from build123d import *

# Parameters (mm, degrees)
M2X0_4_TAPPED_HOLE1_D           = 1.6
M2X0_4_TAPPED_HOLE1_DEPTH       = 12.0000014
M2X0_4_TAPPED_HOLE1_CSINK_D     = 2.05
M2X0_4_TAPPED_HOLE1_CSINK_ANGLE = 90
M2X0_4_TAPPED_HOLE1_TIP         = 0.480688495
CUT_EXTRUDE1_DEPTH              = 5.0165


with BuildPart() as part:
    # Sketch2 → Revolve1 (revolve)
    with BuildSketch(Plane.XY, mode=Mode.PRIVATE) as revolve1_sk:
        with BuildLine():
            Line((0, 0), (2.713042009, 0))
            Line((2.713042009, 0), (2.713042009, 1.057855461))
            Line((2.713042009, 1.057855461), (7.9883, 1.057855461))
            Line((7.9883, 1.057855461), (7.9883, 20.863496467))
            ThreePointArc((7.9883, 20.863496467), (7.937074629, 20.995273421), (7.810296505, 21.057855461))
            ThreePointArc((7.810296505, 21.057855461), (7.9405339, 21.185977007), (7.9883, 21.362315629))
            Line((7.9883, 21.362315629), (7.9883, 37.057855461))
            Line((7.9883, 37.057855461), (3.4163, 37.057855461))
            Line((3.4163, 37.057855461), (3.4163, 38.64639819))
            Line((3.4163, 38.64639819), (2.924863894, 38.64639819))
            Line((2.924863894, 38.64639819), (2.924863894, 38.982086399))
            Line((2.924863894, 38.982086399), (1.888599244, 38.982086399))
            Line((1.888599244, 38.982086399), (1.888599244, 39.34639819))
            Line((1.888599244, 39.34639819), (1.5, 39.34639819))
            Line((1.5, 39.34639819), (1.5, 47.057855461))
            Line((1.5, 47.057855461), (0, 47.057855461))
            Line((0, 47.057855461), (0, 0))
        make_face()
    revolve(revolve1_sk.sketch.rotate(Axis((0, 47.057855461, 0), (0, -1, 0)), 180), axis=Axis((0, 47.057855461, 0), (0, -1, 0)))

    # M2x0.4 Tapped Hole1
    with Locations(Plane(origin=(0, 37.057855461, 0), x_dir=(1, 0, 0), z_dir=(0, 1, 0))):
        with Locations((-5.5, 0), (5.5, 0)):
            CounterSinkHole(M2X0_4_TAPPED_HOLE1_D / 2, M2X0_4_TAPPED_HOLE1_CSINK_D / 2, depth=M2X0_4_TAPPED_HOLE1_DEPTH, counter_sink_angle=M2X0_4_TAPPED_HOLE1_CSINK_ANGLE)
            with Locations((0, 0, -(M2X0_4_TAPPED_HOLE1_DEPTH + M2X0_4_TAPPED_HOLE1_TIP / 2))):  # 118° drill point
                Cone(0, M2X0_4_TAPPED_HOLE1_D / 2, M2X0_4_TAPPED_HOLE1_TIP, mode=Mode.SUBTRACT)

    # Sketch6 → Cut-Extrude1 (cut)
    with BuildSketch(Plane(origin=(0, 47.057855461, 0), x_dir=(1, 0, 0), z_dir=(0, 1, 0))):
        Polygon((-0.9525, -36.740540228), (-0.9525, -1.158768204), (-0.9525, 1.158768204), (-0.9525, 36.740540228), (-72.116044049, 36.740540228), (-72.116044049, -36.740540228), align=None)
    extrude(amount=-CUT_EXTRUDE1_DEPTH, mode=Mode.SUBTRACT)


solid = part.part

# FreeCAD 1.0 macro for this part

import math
import FreeCAD as App
import Part
import Sketcher
from FreeCAD import Vector


def add_polygon(sketch, points):
    """Adds a closed chain of lines whose ends are joined by coincident constraints."""
    first, n = sketch.GeometryCount, len(points)
    for a, b in zip(points, points[1:] + points[:1]):
        sketch.addGeometry(Part.LineSegment(App.Vector(*a, 0), App.Vector(*b, 0)), False)
    for i in range(n):
        sketch.addConstraint(Sketcher.Constraint("Coincident", first + i, 2, first + (i + 1) % n, 1))

doc = App.newDocument("Part")
body = doc.addObject("PartDesign::Body", "Body")

# Sketch on XY plane
sketch1 = body.newObject("Sketcher::SketchObject", "Sketch")
sketch1.AttachmentSupport = (doc.getObject("XY_Plane"), [""])
sketch1.MapMode = "FlatFace"
sketch1.addGeometry([
    Part.LineSegment(Vector(0, 0, 0), Vector(2.71, 0, 0)),  # 0
    Part.LineSegment(Vector(2.71, 0, 0), Vector(2.71, 1.06, 0)),  # 1
    Part.LineSegment(Vector(2.71, 1.06, 0), Vector(7.99, 1.06, 0)),  # 2
    Part.LineSegment(Vector(7.99, 1.06, 0), Vector(7.99, 20.86, 0)),  # 3
    Part.ArcOfCircle(Part.Circle(Vector(7.79, 20.86, 0), Vector(0, 0, 1), 0.2), math.radians(0), math.radians(85)),  # 4
    Part.ArcOfCircle(Part.Circle(Vector(7.64, 21.36, 0), Vector(0, 0, 1), 0.35), math.radians(-61), math.radians(0)),  # 5
    Part.LineSegment(Vector(7.99, 21.36, 0), Vector(7.99, 37.06, 0)),  # 6
    Part.LineSegment(Vector(7.99, 37.06, 0), Vector(3.42, 37.06, 0)),  # 7
    Part.LineSegment(Vector(3.42, 37.06, 0), Vector(3.42, 38.65, 0)),  # 8
    Part.LineSegment(Vector(3.42, 38.65, 0), Vector(2.92, 38.65, 0)),  # 9
    Part.LineSegment(Vector(2.92, 38.65, 0), Vector(2.92, 38.98, 0)),  # 10
    Part.LineSegment(Vector(2.92, 38.98, 0), Vector(1.89, 38.98, 0)),  # 11
    Part.LineSegment(Vector(1.89, 38.98, 0), Vector(1.89, 39.35, 0)),  # 12
    Part.LineSegment(Vector(1.89, 39.35, 0), Vector(1.5, 39.35, 0)),  # 13
    Part.LineSegment(Vector(1.5, 39.35, 0), Vector(1.5, 47.06, 0)),  # 14
    Part.LineSegment(Vector(1.5, 47.06, 0), Vector(0, 47.06, 0)),  # 15
    Part.LineSegment(Vector(0, 47.06, 0), Vector(0, 0, 0)),  # 16
], False)
sketch1.addConstraint([
    Sketcher.Constraint("Coincident", 0, 2, 1, 1),
    Sketcher.Constraint("Coincident", 1, 2, 2, 1),
    Sketcher.Constraint("Coincident", 2, 2, 3, 1),
    Sketcher.Constraint("Tangent", 3, 2, 4, 1),
    Sketcher.Constraint("Coincident", 4, 2, 5, 1),
    Sketcher.Constraint("Tangent", 5, 2, 6, 1),
    Sketcher.Constraint("Coincident", 6, 2, 7, 1),
    Sketcher.Constraint("Coincident", 7, 2, 8, 1),
    Sketcher.Constraint("Coincident", 8, 2, 9, 1),
    Sketcher.Constraint("Coincident", 9, 2, 10, 1),
    Sketcher.Constraint("Coincident", 10, 2, 11, 1),
    Sketcher.Constraint("Coincident", 11, 2, 12, 1),
    Sketcher.Constraint("Coincident", 12, 2, 13, 1),
    Sketcher.Constraint("Coincident", 13, 2, 14, 1),
    Sketcher.Constraint("Coincident", 14, 2, 15, 1),
    Sketcher.Constraint("Coincident", 15, 2, 16, 1),
    Sketcher.Constraint("Coincident", 16, 2, 0, 1),
    Sketcher.Constraint("Horizontal", 0),
    Sketcher.Constraint("Vertical", 1),
    Sketcher.Constraint("Horizontal", 2),
    Sketcher.Constraint("Vertical", 3),
    Sketcher.Constraint("Vertical", 6),
    Sketcher.Constraint("Horizontal", 7),
    Sketcher.Constraint("Vertical", 8),
    Sketcher.Constraint("Horizontal", 9),
    Sketcher.Constraint("Vertical", 10),
    Sketcher.Constraint("Horizontal", 11),
    Sketcher.Constraint("Vertical", 12),
    Sketcher.Constraint("Horizontal", 13),
    Sketcher.Constraint("Vertical", 14),
    Sketcher.Constraint("Horizontal", 15),
    Sketcher.Constraint("Vertical", 16),
    Sketcher.Constraint("Coincident", 16, 2, -1, 1),
    Sketcher.Constraint("Vertical", 3, 2, 5, 2),
    Sketcher.Constraint("DistanceX", 15, 2, 15, 1, 1.5),
    Sketcher.Constraint("DistanceY", 2, 2, 4, 2, 20.0),
    Sketcher.Constraint("DistanceY", 4, 2, 6, 2, 16.0),
    Sketcher.Constraint("DistanceY", 9, 2, 12, 2, 0.7),
    Sketcher.Constraint("DistanceX", 7, 2, 7, 1, 4.572),
    Sketcher.Constraint("Radius", 4, 0.19511),
    Sketcher.Constraint("Radius", 5, 0.349379),
    Sketcher.Constraint("DistanceX", 13, 2, 13, 1, 0.388599),
    Sketcher.Constraint("DistanceY", 3, 1, 3, 2, 19.805641),
    Sketcher.Constraint("DistanceY", 10, 1, 10, 2, 0.335688),
    Sketcher.Constraint("DistanceX", -1, 1, 2, 2, 7.9883),
    Sketcher.Constraint("DistanceY", -1, 1, 8, 2, 38.646398),
    Sketcher.Constraint("DistanceX", 0, 1, 0, 2, 2.713042),
    Sketcher.Constraint("DistanceX", 9, 2, 9, 1, 0.491436),
    Sketcher.Constraint("DistanceY", 1, 1, 1, 2, 1.057855),
    Sketcher.Constraint("DistanceY", 14, 1, 14, 2, 7.711457),
])
revolution = body.newObject("PartDesign::Revolution", "Revolution")
revolution.Profile = sketch1
revolution.ReferenceAxis = (sketch1, ["V_Axis"])
revolution.Angle = 360

# Sketch on XZ plane
sketch2 = body.newObject("Sketcher::SketchObject", "Sketch001")
sketch2.AttachmentSupport = (doc.getObject("XZ_Plane"), [""])
sketch2.MapMode = "FlatFace"
sketch2.AttachmentOffset = App.Placement(Vector(0, 0, -37.057855), App.Rotation())
sketch2.addGeometry([
    Part.Circle(Vector(-5.5, 0, 0), Vector(0, 0, 1), 0.8),
    Part.Circle(Vector(5.5, 0, 0), Vector(0, 0, 1), 0.8),
], False)
sketch2.addConstraint([
    Sketcher.Constraint("Equal", 0, 1),
    Sketcher.Constraint("Symmetric", 0, 3, 1, 3, -1, 1),
    Sketcher.Constraint("PointOnObject", 0, 3, -1),
    Sketcher.Constraint("Diameter", 0, 1.6),
    Sketcher.Constraint("DistanceX", 0, 3, 1, 3, 11.0),
])
doc.recompute()
hole = body.newObject("PartDesign::Hole", "Hole")
hole.Profile = sketch2
hole.ThreadType = "None"
hole.Diameter = 1.6
hole.DepthType = "Dimension"
hole.Depth = 12.000001
hole.DrillPoint = "Angled"
hole.DrillPointAngle = 118
hole.HoleCutType = "Countersink"
hole.HoleCutDiameter = 2.05
hole.HoleCutCountersinkAngle = 90
hole.Reversed = True

# Sketch on XZ plane
sketch3 = body.newObject("Sketcher::SketchObject", "Sketch002")
sketch3.AttachmentSupport = (doc.getObject("XZ_Plane"), [""])
sketch3.MapMode = "FlatFace"
sketch3.AttachmentOffset = App.Placement(Vector(0, 0, -47.057855), App.Rotation())
add_polygon(sketch3, [(-1, 37), (-1, -37), (-72, -37), (-72, 37)])  # lines 0-3
sketch3.addConstraint([
    Sketcher.Constraint("Vertical", 0),
    Sketcher.Constraint("Horizontal", 1),
    Sketcher.Constraint("Vertical", 2),
    Sketcher.Constraint("Horizontal", 3),
    Sketcher.Constraint("DistanceY", 0, 2, 0, 1, 73.48108),
    Sketcher.Constraint("DistanceX", 0, 2, -1, 1, 0.9525),
    Sketcher.Constraint("DistanceX", 1, 2, 1, 1, 71.163544),
    Sketcher.Constraint("DistanceY", 0, 2, -1, 1, 36.74054),
])
pocket1 = body.newObject("PartDesign::Pocket", "Pocket")
pocket1.Profile = sketch3
pocket1.Length = 5.0165
pocket1.Reversed = True

doc.recompute()
